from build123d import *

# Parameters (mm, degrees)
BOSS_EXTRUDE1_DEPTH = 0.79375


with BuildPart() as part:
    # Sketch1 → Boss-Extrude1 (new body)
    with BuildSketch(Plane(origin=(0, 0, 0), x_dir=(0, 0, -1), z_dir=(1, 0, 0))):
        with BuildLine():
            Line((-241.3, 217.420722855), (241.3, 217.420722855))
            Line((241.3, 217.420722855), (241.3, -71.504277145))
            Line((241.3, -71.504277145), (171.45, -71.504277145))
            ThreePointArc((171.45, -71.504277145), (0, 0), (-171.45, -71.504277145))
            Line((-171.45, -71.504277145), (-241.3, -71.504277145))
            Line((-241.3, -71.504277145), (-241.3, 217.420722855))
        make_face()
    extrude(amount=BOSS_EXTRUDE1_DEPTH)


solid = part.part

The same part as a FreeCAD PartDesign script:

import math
import FreeCAD as App
import Part
import Sketcher

V = App.Vector
Q = App.Units.Quantity

doc = App.newDocument("Part")
body = doc.addObject("PartDesign::Body", "Body")

# Sketch on YZ plane
sketch1 = body.newObject("Sketcher::SketchObject", "Sketch")
sketch1.AttachmentSupport = (doc.getObject("YZ_Plane"), [""])
sketch1.MapMode = "FlatFace"
sketch1.addGeometry([
    Part.LineSegment(V(217.420723, -241.3, 0), V(217.420723, 241.3, 0)),  # 0
    Part.LineSegment(V(217.420723, 241.3, 0), V(-71.504277, 241.3, 0)),  # 1
    Part.LineSegment(V(-71.504277, 241.3, 0), V(-71.504277, 171.45, 0)),  # 2
    Part.ArcOfCircle(Part.Circle(V(-241.3, 0, 0), V(0, 0, 1), 241.3), math.radians(-45.277754), math.radians(45.277754)),  # 3
    Part.LineSegment(V(-71.504277, -171.45, 0), V(-71.504277, -241.3, 0)),  # 4
    Part.LineSegment(V(-71.504277, -241.3, 0), V(217.420723, -241.3, 0)),  # 5
], False)
sketch1.addConstraint([
    Sketcher.Constraint("Coincident", 0, 2, 1, 1),
    Sketcher.Constraint("Coincident", 1, 2, 2, 1),
    Sketcher.Constraint("Coincident", 2, 2, 3, 2),
    Sketcher.Constraint("Coincident", 3, 1, 4, 1),
    Sketcher.Constraint("Coincident", 4, 2, 5, 1),
    Sketcher.Constraint("Coincident", 5, 2, 0, 1),
    Sketcher.Constraint("Vertical", 0),
    Sketcher.Constraint("Horizontal", 1),
    Sketcher.Constraint("Vertical", 2),
    Sketcher.Constraint("Vertical", 4),
    Sketcher.Constraint("Horizontal", 5),
    Sketcher.Constraint("Symmetric", 2, 2, 3, 1, -1),
    Sketcher.Constraint("Equal", 2, 4),
    Sketcher.Constraint("Radius", 3, Q("9.5 in")),
    Sketcher.Constraint("DistanceY", 0, 1, 0, 2, Q("19 in")),
    Sketcher.Constraint("DistanceY", 2, 2, 2, 1, Q("2.75 in")),
    Sketcher.Constraint("DistanceX", 3, 3, -1, 1, Q("9.5 in")),
    Sketcher.Constraint("DistanceX", 1, 2, 1, 1, Q("11.375 in")),
])
pad1 = body.newObject("PartDesign::Pad", "Pad")
pad1.Profile = sketch1
pad1.Length = Q("0.03125 in")

doc.recompute()
